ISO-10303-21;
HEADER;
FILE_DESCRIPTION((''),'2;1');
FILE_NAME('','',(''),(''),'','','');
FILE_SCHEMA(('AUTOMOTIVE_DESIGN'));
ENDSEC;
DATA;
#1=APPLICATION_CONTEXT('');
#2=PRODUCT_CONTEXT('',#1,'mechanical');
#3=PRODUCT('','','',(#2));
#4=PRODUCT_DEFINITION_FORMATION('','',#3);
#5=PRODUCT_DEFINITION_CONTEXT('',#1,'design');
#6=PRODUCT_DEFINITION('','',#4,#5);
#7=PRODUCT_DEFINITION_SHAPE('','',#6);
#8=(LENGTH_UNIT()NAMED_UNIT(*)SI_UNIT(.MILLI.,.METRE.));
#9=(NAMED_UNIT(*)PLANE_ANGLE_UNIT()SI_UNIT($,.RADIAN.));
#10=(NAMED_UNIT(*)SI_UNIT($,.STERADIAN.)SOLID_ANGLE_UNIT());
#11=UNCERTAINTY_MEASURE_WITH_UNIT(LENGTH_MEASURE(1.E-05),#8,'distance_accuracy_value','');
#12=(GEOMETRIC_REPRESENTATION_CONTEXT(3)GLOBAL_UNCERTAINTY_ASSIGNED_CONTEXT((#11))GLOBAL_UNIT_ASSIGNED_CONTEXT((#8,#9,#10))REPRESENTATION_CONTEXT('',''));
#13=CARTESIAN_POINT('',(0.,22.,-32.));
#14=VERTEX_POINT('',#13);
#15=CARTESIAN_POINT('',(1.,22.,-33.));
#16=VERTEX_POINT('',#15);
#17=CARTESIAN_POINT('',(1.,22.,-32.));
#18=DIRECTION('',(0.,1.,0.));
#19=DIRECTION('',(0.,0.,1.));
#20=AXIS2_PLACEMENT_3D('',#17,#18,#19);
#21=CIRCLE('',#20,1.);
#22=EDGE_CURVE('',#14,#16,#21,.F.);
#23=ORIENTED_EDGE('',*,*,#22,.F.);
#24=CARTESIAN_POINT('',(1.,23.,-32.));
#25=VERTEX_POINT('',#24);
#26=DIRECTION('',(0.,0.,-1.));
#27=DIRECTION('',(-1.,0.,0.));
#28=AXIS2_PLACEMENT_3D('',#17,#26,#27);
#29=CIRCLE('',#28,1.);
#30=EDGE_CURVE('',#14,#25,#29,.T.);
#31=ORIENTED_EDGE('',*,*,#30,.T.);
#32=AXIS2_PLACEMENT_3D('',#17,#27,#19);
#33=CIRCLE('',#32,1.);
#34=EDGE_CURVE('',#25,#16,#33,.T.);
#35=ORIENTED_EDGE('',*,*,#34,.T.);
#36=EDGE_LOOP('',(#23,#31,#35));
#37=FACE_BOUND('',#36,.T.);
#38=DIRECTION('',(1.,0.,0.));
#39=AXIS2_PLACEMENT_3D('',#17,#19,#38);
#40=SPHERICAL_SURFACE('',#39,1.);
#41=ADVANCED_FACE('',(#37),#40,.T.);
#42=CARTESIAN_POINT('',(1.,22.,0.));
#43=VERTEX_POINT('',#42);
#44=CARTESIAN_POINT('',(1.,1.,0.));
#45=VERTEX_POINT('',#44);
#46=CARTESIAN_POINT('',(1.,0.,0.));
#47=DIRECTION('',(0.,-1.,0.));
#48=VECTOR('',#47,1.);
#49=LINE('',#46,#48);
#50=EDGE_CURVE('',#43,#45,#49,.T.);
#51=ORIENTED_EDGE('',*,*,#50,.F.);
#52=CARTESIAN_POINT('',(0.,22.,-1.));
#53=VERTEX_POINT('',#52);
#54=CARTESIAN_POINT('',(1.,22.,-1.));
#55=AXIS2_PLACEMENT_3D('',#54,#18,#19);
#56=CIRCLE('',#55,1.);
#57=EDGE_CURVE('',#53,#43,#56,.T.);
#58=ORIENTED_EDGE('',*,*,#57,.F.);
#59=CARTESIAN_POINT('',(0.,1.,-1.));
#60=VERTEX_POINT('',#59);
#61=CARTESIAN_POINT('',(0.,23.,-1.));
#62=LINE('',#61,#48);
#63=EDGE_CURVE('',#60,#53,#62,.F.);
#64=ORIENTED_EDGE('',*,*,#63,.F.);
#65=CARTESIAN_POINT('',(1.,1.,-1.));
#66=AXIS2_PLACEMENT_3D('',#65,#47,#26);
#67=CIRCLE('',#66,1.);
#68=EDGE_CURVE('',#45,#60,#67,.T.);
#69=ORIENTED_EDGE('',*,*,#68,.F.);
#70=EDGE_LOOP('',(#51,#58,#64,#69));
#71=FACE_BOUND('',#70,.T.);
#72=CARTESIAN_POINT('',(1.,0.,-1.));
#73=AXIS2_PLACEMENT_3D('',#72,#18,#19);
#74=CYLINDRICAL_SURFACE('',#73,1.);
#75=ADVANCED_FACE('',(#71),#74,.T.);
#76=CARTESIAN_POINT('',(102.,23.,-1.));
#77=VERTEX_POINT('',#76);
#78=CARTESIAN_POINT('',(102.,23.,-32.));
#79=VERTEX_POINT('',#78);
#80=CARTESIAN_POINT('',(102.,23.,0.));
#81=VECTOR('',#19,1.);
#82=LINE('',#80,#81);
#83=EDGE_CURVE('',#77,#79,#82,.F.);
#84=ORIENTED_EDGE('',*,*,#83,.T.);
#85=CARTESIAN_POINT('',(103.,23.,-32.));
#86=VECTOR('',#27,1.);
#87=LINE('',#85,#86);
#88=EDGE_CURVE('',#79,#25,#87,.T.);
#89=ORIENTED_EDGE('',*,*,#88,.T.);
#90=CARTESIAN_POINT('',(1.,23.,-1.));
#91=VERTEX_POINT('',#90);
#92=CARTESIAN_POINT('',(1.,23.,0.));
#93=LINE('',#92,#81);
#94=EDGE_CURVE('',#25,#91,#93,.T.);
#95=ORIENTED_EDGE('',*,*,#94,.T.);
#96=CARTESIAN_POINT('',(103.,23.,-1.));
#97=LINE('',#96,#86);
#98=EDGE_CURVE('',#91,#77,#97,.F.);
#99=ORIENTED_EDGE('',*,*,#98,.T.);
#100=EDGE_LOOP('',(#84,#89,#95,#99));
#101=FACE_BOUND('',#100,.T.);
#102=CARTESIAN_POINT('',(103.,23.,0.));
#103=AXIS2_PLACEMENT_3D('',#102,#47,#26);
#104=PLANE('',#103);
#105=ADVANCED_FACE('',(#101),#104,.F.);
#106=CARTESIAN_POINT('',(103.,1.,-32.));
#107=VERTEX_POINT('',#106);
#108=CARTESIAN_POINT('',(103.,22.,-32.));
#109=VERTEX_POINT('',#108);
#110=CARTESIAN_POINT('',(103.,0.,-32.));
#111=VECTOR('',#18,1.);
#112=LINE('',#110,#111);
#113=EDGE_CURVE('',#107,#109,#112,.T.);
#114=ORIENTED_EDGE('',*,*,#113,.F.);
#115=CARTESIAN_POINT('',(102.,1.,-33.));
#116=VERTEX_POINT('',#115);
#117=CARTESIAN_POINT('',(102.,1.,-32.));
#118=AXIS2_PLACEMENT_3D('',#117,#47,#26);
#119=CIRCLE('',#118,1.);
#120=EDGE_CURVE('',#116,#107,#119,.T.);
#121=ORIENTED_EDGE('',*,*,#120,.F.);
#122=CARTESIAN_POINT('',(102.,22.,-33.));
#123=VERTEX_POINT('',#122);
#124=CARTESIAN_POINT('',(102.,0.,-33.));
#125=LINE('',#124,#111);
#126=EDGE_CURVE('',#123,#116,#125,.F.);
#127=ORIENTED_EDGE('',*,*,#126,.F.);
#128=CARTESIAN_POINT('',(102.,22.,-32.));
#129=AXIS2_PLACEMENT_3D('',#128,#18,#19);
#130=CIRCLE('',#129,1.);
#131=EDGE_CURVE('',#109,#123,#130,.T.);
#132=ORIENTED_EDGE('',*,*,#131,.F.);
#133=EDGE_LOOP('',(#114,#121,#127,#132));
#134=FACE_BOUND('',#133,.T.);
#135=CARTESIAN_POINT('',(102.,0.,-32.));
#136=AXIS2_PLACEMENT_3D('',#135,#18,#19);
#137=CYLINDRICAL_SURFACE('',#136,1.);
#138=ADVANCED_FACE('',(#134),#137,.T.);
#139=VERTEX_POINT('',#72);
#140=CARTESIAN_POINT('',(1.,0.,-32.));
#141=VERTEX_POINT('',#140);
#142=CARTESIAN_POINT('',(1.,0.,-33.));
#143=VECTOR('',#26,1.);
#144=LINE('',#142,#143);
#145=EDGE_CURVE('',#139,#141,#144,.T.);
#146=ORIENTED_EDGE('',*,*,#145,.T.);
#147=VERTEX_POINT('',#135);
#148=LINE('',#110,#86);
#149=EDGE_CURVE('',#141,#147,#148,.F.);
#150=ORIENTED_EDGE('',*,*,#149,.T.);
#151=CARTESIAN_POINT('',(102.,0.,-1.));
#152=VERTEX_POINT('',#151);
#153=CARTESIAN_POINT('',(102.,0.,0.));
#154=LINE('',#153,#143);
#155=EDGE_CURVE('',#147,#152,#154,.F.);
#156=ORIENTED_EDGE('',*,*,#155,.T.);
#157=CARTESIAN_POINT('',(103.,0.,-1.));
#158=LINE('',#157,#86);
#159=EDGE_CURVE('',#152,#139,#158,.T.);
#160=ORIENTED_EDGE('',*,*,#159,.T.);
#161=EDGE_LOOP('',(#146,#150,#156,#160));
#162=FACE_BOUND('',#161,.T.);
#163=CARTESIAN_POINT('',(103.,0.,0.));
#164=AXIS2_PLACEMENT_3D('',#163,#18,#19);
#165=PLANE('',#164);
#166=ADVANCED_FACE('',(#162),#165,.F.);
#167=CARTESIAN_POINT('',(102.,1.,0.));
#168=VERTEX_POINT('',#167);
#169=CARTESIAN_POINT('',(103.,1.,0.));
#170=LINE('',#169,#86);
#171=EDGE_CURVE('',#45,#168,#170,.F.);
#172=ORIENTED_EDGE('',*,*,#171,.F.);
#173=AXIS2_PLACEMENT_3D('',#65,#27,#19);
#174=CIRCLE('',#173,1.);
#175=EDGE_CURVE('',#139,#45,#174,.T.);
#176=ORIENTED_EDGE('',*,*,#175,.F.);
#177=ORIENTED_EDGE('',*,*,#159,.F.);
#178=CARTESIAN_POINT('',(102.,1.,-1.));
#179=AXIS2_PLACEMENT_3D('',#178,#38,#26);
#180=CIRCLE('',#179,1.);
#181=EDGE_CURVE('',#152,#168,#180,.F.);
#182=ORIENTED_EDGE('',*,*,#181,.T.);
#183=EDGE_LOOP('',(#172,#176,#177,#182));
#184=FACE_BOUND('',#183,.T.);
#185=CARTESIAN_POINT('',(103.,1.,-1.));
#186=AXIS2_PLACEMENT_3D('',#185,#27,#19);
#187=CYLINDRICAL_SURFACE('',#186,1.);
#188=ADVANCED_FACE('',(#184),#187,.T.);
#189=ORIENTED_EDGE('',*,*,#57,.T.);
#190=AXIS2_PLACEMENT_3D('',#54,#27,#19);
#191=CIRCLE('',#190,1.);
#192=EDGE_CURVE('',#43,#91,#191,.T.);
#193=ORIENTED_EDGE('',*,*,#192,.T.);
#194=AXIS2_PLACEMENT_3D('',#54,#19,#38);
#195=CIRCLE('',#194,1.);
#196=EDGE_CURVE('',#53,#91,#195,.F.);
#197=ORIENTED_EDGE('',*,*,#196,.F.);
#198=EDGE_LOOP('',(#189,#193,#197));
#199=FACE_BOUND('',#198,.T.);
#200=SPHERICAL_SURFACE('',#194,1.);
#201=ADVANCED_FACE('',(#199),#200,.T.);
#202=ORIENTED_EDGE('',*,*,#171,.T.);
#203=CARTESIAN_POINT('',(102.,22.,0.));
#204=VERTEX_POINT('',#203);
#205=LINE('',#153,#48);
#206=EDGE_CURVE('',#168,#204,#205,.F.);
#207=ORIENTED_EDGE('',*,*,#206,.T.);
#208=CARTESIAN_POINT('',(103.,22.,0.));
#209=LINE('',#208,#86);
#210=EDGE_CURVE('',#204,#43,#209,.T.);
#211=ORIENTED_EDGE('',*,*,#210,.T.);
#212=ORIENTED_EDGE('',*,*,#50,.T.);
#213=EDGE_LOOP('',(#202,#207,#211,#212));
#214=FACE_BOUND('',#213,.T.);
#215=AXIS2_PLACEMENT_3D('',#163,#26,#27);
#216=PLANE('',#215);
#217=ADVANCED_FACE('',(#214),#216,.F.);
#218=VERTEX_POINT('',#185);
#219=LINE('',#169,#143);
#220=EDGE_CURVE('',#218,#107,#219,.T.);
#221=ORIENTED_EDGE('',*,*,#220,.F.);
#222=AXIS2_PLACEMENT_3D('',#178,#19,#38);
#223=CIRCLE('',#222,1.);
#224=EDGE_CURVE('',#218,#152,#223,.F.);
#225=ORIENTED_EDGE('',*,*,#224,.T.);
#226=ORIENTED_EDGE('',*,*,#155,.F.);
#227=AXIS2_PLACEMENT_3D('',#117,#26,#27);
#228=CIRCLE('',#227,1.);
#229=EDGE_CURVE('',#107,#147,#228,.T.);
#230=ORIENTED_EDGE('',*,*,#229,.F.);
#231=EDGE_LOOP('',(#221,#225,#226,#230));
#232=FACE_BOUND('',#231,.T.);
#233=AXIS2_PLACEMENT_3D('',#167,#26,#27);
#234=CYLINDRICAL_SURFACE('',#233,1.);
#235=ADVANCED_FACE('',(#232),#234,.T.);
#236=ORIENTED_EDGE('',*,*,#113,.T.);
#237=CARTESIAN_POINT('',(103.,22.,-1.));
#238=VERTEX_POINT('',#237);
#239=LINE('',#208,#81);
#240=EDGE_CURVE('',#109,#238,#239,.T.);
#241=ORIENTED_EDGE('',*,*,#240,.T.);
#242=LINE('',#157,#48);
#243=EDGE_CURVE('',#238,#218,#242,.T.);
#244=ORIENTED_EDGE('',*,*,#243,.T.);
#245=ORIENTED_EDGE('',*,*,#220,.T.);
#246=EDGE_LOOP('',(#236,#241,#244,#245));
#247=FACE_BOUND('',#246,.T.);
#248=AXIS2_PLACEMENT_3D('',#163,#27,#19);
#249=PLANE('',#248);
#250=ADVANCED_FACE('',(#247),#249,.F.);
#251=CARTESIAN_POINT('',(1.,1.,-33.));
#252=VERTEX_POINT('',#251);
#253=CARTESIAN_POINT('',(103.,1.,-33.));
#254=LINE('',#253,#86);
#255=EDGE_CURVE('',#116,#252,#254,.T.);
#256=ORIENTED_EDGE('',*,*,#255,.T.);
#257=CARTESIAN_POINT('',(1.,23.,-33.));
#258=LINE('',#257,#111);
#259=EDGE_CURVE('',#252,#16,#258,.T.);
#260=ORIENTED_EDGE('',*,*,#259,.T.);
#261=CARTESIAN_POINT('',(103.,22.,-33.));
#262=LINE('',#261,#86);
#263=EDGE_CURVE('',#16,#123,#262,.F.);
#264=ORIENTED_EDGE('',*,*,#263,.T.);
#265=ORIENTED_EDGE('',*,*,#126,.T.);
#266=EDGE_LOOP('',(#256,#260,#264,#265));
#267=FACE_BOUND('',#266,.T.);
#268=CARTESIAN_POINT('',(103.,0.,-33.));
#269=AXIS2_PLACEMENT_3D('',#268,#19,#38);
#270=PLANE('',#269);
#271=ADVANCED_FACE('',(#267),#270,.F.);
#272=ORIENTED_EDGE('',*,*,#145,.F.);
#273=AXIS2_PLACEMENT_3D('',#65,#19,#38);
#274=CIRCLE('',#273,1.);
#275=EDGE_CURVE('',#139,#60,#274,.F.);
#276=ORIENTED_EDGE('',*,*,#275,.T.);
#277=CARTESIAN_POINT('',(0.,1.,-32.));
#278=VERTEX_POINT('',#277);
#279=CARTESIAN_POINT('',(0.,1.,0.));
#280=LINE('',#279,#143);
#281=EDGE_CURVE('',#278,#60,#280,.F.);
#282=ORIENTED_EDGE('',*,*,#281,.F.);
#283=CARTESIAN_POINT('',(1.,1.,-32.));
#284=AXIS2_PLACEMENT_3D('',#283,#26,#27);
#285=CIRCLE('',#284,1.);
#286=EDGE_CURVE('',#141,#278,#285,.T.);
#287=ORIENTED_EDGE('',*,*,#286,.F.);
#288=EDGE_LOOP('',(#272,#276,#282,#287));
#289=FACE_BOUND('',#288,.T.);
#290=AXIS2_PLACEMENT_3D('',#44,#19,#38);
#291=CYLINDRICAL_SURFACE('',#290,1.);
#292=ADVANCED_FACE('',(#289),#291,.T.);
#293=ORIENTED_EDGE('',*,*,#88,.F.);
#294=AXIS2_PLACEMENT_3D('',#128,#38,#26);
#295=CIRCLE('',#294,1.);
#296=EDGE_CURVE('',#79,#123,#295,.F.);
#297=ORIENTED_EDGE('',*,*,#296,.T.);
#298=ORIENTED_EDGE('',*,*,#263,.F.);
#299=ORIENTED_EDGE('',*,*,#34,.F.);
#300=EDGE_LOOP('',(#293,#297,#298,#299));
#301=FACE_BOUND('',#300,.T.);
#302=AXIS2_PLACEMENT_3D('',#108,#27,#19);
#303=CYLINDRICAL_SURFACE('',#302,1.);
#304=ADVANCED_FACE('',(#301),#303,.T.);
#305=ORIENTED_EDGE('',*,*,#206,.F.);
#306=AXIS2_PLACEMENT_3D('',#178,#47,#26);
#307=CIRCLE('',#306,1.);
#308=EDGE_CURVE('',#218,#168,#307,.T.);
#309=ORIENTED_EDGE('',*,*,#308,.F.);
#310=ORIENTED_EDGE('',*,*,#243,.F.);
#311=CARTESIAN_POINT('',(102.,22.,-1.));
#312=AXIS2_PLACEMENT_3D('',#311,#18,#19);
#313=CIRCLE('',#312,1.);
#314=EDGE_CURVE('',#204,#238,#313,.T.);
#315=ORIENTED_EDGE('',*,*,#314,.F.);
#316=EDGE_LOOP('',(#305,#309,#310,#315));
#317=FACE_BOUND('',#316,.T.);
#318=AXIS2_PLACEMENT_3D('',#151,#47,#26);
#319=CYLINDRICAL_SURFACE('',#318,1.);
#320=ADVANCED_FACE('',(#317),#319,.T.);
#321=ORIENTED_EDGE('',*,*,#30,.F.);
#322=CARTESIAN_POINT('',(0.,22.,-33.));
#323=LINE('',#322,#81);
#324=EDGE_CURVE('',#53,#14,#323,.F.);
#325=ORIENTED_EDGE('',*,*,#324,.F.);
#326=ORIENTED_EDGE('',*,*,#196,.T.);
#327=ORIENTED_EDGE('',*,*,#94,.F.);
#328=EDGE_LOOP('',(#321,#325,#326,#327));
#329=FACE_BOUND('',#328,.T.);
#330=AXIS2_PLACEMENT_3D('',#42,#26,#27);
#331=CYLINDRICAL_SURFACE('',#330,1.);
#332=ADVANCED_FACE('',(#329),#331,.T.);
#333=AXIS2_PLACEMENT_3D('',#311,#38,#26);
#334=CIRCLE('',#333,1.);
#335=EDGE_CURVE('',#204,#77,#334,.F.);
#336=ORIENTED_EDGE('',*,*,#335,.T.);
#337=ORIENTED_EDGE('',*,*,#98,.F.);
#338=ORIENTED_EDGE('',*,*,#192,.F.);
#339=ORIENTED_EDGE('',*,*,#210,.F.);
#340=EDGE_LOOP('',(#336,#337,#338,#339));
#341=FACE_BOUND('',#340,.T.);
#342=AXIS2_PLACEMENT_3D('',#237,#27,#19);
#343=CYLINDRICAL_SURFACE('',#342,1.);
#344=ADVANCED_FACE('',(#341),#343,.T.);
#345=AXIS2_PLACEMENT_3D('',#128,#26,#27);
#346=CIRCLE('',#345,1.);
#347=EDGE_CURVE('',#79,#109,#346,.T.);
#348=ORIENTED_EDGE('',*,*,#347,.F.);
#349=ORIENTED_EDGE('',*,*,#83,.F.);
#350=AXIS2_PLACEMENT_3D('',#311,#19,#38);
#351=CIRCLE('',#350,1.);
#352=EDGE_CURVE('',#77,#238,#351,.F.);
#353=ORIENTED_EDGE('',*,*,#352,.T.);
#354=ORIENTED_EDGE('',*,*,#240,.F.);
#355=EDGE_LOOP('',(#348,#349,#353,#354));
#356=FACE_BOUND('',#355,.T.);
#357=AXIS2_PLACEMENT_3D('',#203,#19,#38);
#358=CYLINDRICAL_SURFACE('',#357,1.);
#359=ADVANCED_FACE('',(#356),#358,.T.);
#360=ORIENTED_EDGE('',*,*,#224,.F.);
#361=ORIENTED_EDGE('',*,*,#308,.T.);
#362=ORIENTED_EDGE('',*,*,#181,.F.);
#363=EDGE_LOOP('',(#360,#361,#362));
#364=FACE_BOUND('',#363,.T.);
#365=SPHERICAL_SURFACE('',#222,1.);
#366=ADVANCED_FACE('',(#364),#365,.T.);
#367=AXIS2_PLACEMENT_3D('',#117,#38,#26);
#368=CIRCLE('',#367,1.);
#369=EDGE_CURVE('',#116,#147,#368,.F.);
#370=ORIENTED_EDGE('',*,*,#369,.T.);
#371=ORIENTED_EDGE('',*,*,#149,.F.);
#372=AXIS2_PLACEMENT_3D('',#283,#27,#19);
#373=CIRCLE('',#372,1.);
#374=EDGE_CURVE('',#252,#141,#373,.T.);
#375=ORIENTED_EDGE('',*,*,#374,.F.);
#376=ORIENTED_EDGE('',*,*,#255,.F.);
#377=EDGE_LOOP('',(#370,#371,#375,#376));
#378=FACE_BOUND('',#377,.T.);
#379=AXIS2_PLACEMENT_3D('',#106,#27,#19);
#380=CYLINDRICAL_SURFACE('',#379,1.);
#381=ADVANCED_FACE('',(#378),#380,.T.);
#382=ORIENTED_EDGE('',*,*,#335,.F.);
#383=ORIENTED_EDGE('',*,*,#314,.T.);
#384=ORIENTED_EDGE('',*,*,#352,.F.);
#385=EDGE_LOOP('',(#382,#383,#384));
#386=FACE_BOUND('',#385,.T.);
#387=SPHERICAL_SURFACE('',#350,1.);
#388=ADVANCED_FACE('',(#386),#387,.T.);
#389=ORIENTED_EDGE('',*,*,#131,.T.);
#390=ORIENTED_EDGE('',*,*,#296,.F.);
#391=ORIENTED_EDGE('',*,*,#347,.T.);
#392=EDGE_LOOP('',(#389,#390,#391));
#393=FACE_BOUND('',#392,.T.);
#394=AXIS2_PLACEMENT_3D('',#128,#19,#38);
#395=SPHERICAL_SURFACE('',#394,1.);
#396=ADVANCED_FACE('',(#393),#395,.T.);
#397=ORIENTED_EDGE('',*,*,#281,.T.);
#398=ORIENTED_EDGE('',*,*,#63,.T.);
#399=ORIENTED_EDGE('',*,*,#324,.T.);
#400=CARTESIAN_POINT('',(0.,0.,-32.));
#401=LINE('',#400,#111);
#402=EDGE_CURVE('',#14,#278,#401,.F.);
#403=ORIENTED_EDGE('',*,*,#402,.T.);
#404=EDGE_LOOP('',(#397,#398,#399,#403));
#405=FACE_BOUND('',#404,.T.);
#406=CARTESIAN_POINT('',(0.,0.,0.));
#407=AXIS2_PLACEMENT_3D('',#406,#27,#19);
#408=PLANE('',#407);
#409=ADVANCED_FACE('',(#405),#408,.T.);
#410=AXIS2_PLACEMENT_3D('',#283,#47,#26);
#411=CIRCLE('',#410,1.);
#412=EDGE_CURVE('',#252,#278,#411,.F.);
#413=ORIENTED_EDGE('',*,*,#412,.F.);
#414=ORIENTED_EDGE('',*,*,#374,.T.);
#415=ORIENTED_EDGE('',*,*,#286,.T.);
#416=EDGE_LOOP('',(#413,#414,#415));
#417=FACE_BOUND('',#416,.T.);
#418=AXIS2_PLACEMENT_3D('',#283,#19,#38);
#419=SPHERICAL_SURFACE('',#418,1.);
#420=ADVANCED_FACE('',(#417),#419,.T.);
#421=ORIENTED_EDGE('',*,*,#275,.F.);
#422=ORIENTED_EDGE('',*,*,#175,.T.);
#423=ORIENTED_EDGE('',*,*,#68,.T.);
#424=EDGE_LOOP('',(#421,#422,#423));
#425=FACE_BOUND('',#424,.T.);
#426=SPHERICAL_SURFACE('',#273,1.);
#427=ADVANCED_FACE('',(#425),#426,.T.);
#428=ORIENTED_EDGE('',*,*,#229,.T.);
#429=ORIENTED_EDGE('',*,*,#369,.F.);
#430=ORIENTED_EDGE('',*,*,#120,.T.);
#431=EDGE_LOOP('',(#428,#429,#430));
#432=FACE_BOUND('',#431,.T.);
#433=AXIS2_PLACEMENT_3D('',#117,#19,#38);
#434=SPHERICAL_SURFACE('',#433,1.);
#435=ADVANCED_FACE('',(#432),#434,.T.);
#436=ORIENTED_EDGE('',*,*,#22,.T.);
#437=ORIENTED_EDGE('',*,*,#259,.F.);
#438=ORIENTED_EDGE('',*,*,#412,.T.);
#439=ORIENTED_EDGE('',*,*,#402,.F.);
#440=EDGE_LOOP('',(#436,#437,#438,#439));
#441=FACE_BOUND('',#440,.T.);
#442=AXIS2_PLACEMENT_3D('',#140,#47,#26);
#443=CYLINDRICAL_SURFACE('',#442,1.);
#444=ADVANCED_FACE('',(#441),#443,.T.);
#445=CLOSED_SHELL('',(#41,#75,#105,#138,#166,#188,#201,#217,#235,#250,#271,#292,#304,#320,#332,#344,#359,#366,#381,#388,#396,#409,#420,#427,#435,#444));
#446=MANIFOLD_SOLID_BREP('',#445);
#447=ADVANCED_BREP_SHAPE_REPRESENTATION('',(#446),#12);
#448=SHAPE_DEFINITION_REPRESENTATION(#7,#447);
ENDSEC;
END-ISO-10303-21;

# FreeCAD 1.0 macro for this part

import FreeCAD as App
import Part
import Sketcher

V = App.Vector
Q = App.Units.Quantity

doc = App.newDocument("Part")
params = doc.addObject("Spreadsheet::Sheet", "Params")
for row, (alias, value) in enumerate([
    ("sketch1_width", "23 mm"),
    ("sketch1_height", "33 mm"),
    ("pad1_length", "103 mm"),
    ("fillet_radius", "1 mm"),
], start=1):
    params.set(f"A{row}", alias)
    params.set(f"B{row}", "=" + value)
    params.setAlias(f"B{row}", alias)

body = doc.addObject("PartDesign::Body", "Body")

# Sketch on YZ plane
sketch1 = body.newObject("Sketcher::SketchObject", "Sketch")
sketch1.AttachmentSupport = (doc.getObject("YZ_Plane"), [""])
sketch1.MapMode = "FlatFace"
sketch1.addGeometry(Part.LineSegment(V(23, 0, 0), V(0, 0, 0)), False)
sketch1.addGeometry(Part.LineSegment(V(0, 0, 0), V(0, -33, 0)), False)
sketch1.addGeometry(Part.LineSegment(V(0, -33, 0), V(23, -33, 0)), False)
sketch1.addGeometry(Part.LineSegment(V(23, -33, 0), V(23, 0, 0)), False)
sketch1.addConstraint(Sketcher.Constraint("Coincident", 0, 2, 1, 1))
sketch1.addConstraint(Sketcher.Constraint("Coincident", 1, 2, 2, 1))
sketch1.addConstraint(Sketcher.Constraint("Coincident", 2, 2, 3, 1))
sketch1.addConstraint(Sketcher.Constraint("Coincident", 3, 2, 0, 1))
sketch1.addConstraint(Sketcher.Constraint("Horizontal", 0))
sketch1.addConstraint(Sketcher.Constraint("Vertical", 1))
sketch1.addConstraint(Sketcher.Constraint("Horizontal", 2))
sketch1.addConstraint(Sketcher.Constraint("Vertical", 3))
sketch1.addConstraint(Sketcher.Constraint("Coincident", 0, 2, -1, 1))
sketch1.addConstraint(Sketcher.Constraint("DistanceX", 0, 2, 0, 1, Q("23 mm")))
sketch1.addConstraint(Sketcher.Constraint("DistanceY", 1, 2, 1, 1, Q("33 mm")))
sketch1.setExpression("Constraints[9]", "Params.sketch1_width")
sketch1.setExpression("Constraints[10]", "Params.sketch1_height")
pad1 = body.newObject("PartDesign::Pad", "Pad")
pad1.Profile = sketch1
pad1.setExpression("Length", "Params.pad1_length")
doc.recompute()

fillet = body.newObject("PartDesign::Fillet", "Fillet")
fillet.Base = (pad1, ["Edge1"])
fillet.UseAllEdges = True
fillet.setExpression("Radius", "Params.fillet_radius")

doc.recompute()
